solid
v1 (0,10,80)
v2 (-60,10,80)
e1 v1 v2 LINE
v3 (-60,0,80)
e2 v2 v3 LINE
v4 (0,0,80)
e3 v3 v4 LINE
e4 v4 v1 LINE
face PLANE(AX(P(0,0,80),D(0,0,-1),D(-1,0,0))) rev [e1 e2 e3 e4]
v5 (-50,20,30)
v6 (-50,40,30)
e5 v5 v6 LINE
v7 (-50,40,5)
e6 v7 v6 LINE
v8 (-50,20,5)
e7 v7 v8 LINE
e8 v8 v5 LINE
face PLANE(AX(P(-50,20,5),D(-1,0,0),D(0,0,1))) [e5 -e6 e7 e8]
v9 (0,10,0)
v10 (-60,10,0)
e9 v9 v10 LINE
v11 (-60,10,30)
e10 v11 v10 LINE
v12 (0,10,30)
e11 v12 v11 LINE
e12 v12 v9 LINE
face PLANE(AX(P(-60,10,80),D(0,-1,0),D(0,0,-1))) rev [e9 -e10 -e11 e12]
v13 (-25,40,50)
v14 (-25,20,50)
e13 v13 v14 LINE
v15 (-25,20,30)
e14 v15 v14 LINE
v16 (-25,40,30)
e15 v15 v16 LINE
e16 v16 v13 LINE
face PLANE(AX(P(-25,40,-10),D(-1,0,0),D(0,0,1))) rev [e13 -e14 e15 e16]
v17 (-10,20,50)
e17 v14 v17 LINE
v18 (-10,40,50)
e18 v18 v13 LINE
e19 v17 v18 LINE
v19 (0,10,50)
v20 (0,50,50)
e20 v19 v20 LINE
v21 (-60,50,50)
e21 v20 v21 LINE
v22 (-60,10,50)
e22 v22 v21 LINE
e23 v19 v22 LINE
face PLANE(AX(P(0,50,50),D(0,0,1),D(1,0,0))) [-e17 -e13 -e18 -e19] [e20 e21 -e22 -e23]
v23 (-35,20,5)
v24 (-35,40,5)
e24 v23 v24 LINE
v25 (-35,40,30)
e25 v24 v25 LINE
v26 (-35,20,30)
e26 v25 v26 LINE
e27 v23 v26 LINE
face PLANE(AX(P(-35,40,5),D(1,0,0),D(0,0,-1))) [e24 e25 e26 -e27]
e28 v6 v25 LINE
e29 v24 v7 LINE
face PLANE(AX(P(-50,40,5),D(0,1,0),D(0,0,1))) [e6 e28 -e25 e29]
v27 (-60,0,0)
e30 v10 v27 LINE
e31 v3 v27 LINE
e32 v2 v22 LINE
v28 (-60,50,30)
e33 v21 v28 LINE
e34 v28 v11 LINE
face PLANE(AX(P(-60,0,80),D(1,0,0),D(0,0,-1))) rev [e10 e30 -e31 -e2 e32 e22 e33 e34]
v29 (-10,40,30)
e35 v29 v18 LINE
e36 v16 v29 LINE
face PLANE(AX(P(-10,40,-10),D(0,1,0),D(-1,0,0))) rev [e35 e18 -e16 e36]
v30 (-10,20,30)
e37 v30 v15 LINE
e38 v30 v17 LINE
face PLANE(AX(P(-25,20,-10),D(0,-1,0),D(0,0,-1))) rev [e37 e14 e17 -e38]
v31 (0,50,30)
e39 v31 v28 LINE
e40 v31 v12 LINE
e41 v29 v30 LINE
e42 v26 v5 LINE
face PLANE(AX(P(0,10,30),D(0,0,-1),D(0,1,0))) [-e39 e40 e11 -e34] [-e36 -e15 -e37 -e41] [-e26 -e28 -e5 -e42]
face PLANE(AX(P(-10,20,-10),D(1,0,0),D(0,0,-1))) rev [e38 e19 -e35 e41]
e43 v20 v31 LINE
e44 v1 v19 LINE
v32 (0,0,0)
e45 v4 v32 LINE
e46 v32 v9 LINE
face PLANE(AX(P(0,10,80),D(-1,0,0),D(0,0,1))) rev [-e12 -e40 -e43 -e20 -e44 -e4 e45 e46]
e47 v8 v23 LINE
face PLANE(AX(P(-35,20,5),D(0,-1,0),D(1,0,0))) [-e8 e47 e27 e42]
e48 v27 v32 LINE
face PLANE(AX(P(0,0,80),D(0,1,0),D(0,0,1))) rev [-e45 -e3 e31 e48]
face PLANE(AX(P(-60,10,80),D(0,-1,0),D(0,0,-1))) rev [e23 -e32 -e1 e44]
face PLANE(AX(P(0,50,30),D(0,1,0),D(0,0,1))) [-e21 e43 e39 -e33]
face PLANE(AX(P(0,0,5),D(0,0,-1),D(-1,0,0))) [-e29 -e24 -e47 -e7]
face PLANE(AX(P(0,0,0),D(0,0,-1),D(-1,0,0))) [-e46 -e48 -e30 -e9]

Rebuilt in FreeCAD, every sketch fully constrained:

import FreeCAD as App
import Part
import Sketcher

V = App.Vector
Q = App.Units.Quantity

doc = App.newDocument("Part")
body = doc.addObject("PartDesign::Body", "Body")

# Sketch on XY plane
sketch1 = doc.addObject("Sketcher::SketchObject", "Sketch")
body.addObject(sketch1)
sketch1.AttachmentSupport = (doc.XY_Plane, [""])
sketch1.MapMode = "FlatFace"
sketch1.addGeometry(Part.LineSegment(V(-60, 10, 0), V(-60, 0, 0)), False)
sketch1.addGeometry(Part.LineSegment(V(-60, 0, 0), V(0, 0, 0)), False)
sketch1.addGeometry(Part.LineSegment(V(0, 0, 0), V(0, 10, 0)), False)
sketch1.addGeometry(Part.LineSegment(V(0, 10, 0), V(-60, 10, 0)), False)
sketch1.addConstraint(Sketcher.Constraint("Coincident", 0, 2, 1, 1))
sketch1.addConstraint(Sketcher.Constraint("Coincident", 1, 2, 2, 1))
sketch1.addConstraint(Sketcher.Constraint("Coincident", 2, 2, 3, 1))
sketch1.addConstraint(Sketcher.Constraint("Coincident", 3, 2, 0, 1))
sketch1.addConstraint(Sketcher.Constraint("Vertical", 0))
sketch1.addConstraint(Sketcher.Constraint("Horizontal", 1))
sketch1.addConstraint(Sketcher.Constraint("Vertical", 2))
sketch1.addConstraint(Sketcher.Constraint("Horizontal", 3))
sketch1.addConstraint(Sketcher.Constraint("Coincident", 1, 2, -1, 1))
sketch1.addConstraint(Sketcher.Constraint("DistanceX", 1, 1, 1, 2, Q("60 mm")))
sketch1.addConstraint(Sketcher.Constraint("DistanceY", 0, 2, 0, 1, Q("10 mm")))
pad1 = doc.addObject("PartDesign::Pad", "Pad")
body.addObject(pad1)
pad1.Profile = sketch1
pad1.Length = 80

# Sketch on YZ plane
sketch2 = doc.addObject("Sketcher::SketchObject", "Sketch001")
body.addObject(sketch2)
sketch2.AttachmentSupport = (doc.YZ_Plane, [""])
sketch2.MapMode = "FlatFace"
sketch2.AttachmentOffset = App.Placement(V(0, 0, -60), App.Rotation())
sketch2.addGeometry(Part.LineSegment(V(50, 30, 0), V(10, 30, 0)), False)
sketch2.addGeometry(Part.LineSegment(V(10, 30, 0), V(10, 50, 0)), False)
sketch2.addGeometry(Part.LineSegment(V(10, 50, 0), V(50, 50, 0)), False)
sketch2.addGeometry(Part.LineSegment(V(50, 50, 0), V(50, 30, 0)), False)
sketch2.addConstraint(Sketcher.Constraint("Coincident", 0, 2, 1, 1))
sketch2.addConstraint(Sketcher.Constraint("Coincident", 1, 2, 2, 1))
sketch2.addConstraint(Sketcher.Constraint("Coincident", 2, 2, 3, 1))
sketch2.addConstraint(Sketcher.Constraint("Coincident", 3, 2, 0, 1))
sketch2.addConstraint(Sketcher.Constraint("Horizontal", 0))
sketch2.addConstraint(Sketcher.Constraint("Vertical", 1))
sketch2.addConstraint(Sketcher.Constraint("Horizontal", 2))
sketch2.addConstraint(Sketcher.Constraint("Vertical", 3))
sketch2.addConstraint(Sketcher.Constraint("DistanceX", 0, 2, 0, 1, Q("40 mm")))
sketch2.addConstraint(Sketcher.Constraint("DistanceY", 1, 1, 1, 2, Q("20 mm")))
sketch2.addConstraint(Sketcher.Constraint("DistanceX", -1, 1, 0, 2, Q("10 mm")))
sketch2.addConstraint(Sketcher.Constraint("DistanceY", -1, 1, 0, 2, Q("30 mm")))
pad2 = doc.addObject("PartDesign::Pad", "Pad001")
body.addObject(pad2)
pad2.Profile = sketch2
pad2.Length = 60

# Sketch on XY plane
sketch3 = doc.addObject("Sketcher::SketchObject", "Sketch002")
body.addObject(sketch3)
sketch3.AttachmentSupport = (doc.XY_Plane, [""])
sketch3.MapMode = "FlatFace"
sketch3.AttachmentOffset = App.Placement(V(0, 0, 50), App.Rotation())
sketch3.addGeometry(Part.LineSegment(V(-25, 40, 0), V(-25, 20, 0)), False)
sketch3.addGeometry(Part.LineSegment(V(-25, 20, 0), V(-10, 20, 0)), False)
sketch3.addGeometry(Part.LineSegment(V(-10, 20, 0), V(-10, 40, 0)), False)
sketch3.addGeometry(Part.LineSegment(V(-10, 40, 0), V(-25, 40, 0)), False)
sketch3.addGeometry(Part.LineSegment(V(-50, 40, 0), V(-50, 20, 0)), False)
sketch3.addGeometry(Part.LineSegment(V(-50, 20, 0), V(-35, 20, 0)), False)
sketch3.addGeometry(Part.LineSegment(V(-35, 20, 0), V(-35, 40, 0)), False)
sketch3.addGeometry(Part.LineSegment(V(-35, 40, 0), V(-50, 40, 0)), False)
sketch3.addConstraint(Sketcher.Constraint("Coincident", 0, 2, 1, 1))
sketch3.addConstraint(Sketcher.Constraint("Coincident", 1, 2, 2, 1))
sketch3.addConstraint(Sketcher.Constraint("Coincident", 2, 2, 3, 1))
sketch3.addConstraint(Sketcher.Constraint("Coincident", 3, 2, 0, 1))
sketch3.addConstraint(Sketcher.Constraint("Coincident", 4, 2, 5, 1))
sketch3.addConstraint(Sketcher.Constraint("Coincident", 5, 2, 6, 1))
sketch3.addConstraint(Sketcher.Constraint("Coincident", 6, 2, 7, 1))
sketch3.addConstraint(Sketcher.Constraint("Coincident", 7, 2, 4, 1))
sketch3.addConstraint(Sketcher.Constraint("Vertical", 0))
sketch3.addConstraint(Sketcher.Constraint("Horizontal", 1))
sketch3.addConstraint(Sketcher.Constraint("Vertical", 2))
sketch3.addConstraint(Sketcher.Constraint("Horizontal", 3))
sketch3.addConstraint(Sketcher.Constraint("Vertical", 4))
sketch3.addConstraint(Sketcher.Constraint("Horizontal", 5))
sketch3.addConstraint(Sketcher.Constraint("Vertical", 6))
sketch3.addConstraint(Sketcher.Constraint("Horizontal", 7))
sketch3.addConstraint(Sketcher.Constraint("Horizontal", 1, 2, 4, 2))
sketch3.addConstraint(Sketcher.Constraint("Horizontal", 3, 2, 6, 2))
sketch3.addConstraint(Sketcher.Constraint("Equal", 3, 5))
sketch3.addConstraint(Sketcher.Constraint("DistanceX", 1, 1, 1, 2, Q("15 mm")))
sketch3.addConstraint(Sketcher.Constraint("DistanceY", 0, 2, 0, 1, Q("20 mm")))
sketch3.addConstraint(Sketcher.Constraint("DistanceX", 0, 2, -1, 1, Q("25 mm")))
sketch3.addConstraint(Sketcher.Constraint("DistanceY", -1, 1, 0, 2, Q("20 mm")))
sketch3.addConstraint(Sketcher.Constraint("DistanceX", 4, 2, -1, 1, Q("50 mm")))
pocket1 = doc.addObject("PartDesign::Pocket", "Pocket")
body.addObject(pocket1)
pocket1.Profile = sketch3
pocket1.Length = 60

# Sketch on XY plane
sketch4 = doc.addObject("Sketcher::SketchObject", "Sketch003")
body.addObject(sketch4)
sketch4.AttachmentSupport = (doc.XY_Plane, [""])
sketch4.MapMode = "FlatFace"
sketch4.AttachmentOffset = App.Placement(V(0, 0, 50), App.Rotation())
sketch4.addGeometry(Part.LineSegment(V(-50, 40, 0), V(-50, 20, 0)), False)
sketch4.addGeometry(Part.LineSegment(V(-50, 20, 0), V(-35, 20, 0)), False)
sketch4.addGeometry(Part.LineSegment(V(-35, 20, 0), V(-35, 40, 0)), False)
sketch4.addGeometry(Part.LineSegment(V(-35, 40, 0), V(-50, 40, 0)), False)
sketch4.addConstraint(Sketcher.Constraint("Coincident", 0, 2, 1, 1))
sketch4.addConstraint(Sketcher.Constraint("Coincident", 1, 2, 2, 1))
sketch4.addConstraint(Sketcher.Constraint("Coincident", 2, 2, 3, 1))
sketch4.addConstraint(Sketcher.Constraint("Coincident", 3, 2, 0, 1))
sketch4.addConstraint(Sketcher.Constraint("Vertical", 0))
sketch4.addConstraint(Sketcher.Constraint("Horizontal", 1))
sketch4.addConstraint(Sketcher.Constraint("Vertical", 2))
sketch4.addConstraint(Sketcher.Constraint("Horizontal", 3))
sketch4.addConstraint(Sketcher.Constraint("DistanceX", 1, 1, 1, 2, Q("15 mm")))
sketch4.addConstraint(Sketcher.Constraint("DistanceY", 0, 2, 0, 1, Q("20 mm")))
sketch4.addConstraint(Sketcher.Constraint("DistanceX", 0, 2, -1, 1, Q("50 mm")))
sketch4.addConstraint(Sketcher.Constraint("DistanceY", -1, 1, 0, 2, Q("20 mm")))
pad3 = doc.addObject("PartDesign::Pad", "Pad002")
body.addObject(pad3)
pad3.Profile = sketch4
pad3.Length = 45
pad3.Reversed = True

doc.recompute()
